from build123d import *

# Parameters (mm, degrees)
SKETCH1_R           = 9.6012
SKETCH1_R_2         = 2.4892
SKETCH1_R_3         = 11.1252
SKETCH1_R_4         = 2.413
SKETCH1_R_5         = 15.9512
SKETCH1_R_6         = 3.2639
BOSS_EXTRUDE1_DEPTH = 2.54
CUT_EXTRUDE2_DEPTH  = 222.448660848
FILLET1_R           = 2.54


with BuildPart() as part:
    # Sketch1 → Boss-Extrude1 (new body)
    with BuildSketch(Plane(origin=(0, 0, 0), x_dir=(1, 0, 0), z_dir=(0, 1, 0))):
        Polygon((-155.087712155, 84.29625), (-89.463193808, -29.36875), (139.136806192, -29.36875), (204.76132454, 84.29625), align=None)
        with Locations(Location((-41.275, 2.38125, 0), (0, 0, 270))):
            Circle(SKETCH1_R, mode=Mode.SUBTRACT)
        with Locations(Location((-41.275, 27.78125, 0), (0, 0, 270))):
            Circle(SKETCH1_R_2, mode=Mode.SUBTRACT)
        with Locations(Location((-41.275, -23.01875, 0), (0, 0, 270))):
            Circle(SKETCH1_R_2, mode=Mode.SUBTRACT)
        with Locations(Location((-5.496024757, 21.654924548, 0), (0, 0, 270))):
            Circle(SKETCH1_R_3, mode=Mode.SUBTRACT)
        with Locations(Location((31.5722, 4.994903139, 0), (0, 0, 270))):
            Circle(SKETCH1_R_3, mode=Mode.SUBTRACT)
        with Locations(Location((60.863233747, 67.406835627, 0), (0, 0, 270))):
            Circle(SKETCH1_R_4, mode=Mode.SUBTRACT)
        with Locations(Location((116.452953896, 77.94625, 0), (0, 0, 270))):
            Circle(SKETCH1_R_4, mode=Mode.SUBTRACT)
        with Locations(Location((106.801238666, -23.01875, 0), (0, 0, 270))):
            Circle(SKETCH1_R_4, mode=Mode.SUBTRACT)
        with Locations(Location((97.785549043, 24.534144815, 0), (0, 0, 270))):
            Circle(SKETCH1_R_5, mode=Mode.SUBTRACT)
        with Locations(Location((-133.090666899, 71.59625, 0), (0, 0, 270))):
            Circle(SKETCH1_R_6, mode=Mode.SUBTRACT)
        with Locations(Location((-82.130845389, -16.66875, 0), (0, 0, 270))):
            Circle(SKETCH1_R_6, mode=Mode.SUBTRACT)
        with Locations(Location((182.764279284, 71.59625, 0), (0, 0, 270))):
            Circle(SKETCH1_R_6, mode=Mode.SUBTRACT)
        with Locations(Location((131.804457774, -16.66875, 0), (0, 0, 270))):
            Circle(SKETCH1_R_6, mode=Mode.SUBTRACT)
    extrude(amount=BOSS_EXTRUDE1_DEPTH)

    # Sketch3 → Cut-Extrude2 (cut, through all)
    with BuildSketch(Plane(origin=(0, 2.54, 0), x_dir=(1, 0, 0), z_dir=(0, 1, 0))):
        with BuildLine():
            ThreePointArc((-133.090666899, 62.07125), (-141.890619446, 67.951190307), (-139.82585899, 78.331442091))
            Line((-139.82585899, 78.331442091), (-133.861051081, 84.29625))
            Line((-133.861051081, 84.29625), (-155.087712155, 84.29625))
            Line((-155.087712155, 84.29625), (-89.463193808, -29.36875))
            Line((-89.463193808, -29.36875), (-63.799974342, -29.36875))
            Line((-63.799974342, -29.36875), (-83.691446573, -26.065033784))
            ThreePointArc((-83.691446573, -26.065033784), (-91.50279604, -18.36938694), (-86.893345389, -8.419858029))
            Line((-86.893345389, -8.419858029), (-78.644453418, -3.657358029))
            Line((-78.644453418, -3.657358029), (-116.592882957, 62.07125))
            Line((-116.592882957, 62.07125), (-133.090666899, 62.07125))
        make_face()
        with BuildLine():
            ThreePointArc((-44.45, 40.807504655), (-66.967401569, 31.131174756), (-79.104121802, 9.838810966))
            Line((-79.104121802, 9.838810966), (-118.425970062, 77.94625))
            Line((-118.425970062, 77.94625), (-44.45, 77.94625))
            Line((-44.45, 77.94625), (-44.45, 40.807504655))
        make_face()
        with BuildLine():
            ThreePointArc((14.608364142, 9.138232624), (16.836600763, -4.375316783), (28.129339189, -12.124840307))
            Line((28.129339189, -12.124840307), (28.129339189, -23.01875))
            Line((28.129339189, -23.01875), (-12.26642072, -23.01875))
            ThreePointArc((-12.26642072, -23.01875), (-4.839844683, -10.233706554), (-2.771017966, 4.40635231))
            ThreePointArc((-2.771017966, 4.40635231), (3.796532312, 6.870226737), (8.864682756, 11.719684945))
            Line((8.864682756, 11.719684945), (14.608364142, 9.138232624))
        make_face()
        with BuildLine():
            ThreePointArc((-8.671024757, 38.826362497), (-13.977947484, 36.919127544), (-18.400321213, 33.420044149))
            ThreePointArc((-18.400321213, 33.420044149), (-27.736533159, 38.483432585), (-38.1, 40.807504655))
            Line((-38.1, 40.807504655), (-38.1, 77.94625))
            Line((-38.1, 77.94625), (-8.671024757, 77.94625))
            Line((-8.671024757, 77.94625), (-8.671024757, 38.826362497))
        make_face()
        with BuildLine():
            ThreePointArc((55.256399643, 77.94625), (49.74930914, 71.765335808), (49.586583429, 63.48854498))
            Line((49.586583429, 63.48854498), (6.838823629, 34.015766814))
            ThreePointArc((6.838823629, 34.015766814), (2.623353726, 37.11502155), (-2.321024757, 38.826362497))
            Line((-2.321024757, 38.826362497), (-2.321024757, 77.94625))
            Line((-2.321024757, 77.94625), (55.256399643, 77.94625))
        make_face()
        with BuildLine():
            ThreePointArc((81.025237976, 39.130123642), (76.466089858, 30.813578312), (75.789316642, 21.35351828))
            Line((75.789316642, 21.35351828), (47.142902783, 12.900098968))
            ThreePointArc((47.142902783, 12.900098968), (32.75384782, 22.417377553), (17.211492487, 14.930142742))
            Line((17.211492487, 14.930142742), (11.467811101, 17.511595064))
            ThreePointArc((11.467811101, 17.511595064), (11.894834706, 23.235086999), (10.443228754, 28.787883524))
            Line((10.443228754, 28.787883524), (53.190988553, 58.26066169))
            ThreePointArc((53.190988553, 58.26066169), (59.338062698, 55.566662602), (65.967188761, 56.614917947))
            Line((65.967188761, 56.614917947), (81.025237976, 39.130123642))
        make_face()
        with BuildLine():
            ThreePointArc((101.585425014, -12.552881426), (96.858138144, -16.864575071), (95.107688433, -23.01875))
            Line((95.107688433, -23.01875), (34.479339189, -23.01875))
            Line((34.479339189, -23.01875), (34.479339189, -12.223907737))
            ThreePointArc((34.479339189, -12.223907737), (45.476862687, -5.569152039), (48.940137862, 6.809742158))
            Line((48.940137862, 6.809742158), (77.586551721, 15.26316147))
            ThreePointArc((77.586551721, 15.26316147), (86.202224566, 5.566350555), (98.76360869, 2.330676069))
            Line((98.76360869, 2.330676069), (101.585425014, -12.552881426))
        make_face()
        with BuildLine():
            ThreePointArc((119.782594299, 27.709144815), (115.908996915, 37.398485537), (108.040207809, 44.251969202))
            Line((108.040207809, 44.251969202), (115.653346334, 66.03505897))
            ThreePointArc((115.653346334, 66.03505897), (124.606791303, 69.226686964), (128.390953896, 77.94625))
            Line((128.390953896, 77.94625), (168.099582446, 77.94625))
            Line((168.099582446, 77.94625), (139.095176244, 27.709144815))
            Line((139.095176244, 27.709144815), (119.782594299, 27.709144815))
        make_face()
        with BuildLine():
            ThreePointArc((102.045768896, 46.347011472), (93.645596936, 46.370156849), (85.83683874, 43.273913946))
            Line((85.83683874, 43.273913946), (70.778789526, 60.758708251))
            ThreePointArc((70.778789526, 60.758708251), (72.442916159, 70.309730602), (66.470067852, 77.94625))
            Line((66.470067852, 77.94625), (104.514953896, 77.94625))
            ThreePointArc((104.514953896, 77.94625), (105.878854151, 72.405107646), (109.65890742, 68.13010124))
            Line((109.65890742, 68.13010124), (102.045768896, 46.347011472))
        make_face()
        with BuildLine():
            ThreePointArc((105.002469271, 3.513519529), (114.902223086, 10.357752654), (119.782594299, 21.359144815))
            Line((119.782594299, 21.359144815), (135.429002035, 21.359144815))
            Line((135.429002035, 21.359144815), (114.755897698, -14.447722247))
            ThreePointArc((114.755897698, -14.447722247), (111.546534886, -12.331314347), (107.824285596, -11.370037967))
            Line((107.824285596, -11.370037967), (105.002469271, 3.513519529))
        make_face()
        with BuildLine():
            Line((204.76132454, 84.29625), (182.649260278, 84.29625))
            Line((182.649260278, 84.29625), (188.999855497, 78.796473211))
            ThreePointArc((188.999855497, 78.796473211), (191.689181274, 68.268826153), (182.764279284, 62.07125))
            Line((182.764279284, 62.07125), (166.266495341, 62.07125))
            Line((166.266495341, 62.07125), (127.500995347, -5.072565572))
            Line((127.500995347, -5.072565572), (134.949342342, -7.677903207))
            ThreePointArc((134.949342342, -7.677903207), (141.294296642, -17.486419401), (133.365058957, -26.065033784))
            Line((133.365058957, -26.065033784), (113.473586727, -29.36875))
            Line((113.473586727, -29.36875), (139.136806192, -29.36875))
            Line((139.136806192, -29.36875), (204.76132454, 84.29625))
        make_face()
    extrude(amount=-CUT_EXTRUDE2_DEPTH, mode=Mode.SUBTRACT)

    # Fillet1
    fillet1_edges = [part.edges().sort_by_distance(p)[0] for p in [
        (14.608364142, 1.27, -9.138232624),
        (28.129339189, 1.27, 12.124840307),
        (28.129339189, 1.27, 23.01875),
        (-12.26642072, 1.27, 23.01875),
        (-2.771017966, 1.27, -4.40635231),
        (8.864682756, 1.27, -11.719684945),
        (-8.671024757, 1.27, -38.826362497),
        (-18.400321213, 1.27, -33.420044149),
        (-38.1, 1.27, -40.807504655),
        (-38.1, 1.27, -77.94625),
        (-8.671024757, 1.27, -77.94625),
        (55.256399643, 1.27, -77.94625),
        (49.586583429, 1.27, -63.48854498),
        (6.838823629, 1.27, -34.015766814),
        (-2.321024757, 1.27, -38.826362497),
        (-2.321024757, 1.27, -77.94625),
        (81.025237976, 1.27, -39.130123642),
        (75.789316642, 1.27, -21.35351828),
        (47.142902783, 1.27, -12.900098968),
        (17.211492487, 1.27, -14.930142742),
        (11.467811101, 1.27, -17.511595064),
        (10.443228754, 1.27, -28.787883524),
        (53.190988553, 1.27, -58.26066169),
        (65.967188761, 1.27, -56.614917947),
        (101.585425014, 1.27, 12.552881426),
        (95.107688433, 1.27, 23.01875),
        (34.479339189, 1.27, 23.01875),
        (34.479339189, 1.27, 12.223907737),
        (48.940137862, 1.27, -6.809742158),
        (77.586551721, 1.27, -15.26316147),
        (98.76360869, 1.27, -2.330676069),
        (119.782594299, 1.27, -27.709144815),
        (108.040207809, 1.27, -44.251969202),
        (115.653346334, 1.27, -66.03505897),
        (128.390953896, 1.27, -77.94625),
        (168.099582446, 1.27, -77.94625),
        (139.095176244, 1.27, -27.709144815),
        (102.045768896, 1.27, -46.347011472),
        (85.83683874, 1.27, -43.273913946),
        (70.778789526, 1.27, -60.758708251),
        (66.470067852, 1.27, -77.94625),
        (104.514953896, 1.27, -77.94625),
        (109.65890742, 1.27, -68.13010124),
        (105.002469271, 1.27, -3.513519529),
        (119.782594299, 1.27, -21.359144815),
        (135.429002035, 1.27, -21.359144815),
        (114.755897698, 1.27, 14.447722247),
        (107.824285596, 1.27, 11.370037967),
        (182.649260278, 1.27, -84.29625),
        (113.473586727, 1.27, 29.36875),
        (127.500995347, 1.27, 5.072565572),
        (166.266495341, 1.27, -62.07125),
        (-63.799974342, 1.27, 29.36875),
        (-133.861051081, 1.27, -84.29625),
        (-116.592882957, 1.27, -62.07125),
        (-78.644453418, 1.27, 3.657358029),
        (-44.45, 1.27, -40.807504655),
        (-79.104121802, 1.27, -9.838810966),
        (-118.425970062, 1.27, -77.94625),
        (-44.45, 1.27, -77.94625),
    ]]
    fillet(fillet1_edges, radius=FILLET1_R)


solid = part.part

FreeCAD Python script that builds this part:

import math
import FreeCAD as App
import Part
import Sketcher
Q = App.Units.Quantity


def edges_at(feature, points):
    """Names of the edges that pass closest to the given points."""
    edges = feature.Shape.Edges
    near = lambda p: min(range(len(edges)), key=lambda i: edges[i].distToShape(Part.Vertex(*p))[0])
    return sorted({f"Edge{near(p) + 1}" for p in points})


def add_polygon(sketch, points):
    """Adds a closed chain of lines whose ends are joined by coincident constraints."""
    first, n = sketch.GeometryCount, len(points)
    for a, b in zip(points, points[1:] + points[:1]):
        sketch.addGeometry(Part.LineSegment(App.Vector(*a, 0), App.Vector(*b, 0)), False)
    for i in range(n):
        sketch.addConstraint(Sketcher.Constraint("Coincident", first + i, 2, first + (i + 1) % n, 1))

doc = App.newDocument("Part")
body = doc.addObject("PartDesign::Body", "Body")

sketch1 = body.newObject("Sketcher::SketchObject", "Sketch")
sketch1.AttachmentSupport = (doc.getObject("XZ_Plane"), [""])
sketch1.MapMode = "FlatFace"
add_polygon(sketch1, [(-155.1, -84.3), (-89.5, 29.4), (139.1, 29.4), (204.8, -84.3)])
sketch1.addGeometry(Part.Circle(App.Vector(-82.1, 16.7, 0), App.Vector(0, 0, 1), 3.3), False)
sketch1.addGeometry(Part.Circle(App.Vector(-41.3, 23, 0), App.Vector(0, 0, 1), 2.5), False)
sketch1.addGeometry(Part.Circle(App.Vector(-41.3, -2.4, 0), App.Vector(0, 0, 1), 9.6), False)
sketch1.addGeometry(Part.Circle(App.Vector(-5.5, -21.7, 0), App.Vector(0, 0, 1), 11.1), False)
sketch1.addGeometry(Part.Circle(App.Vector(106.8, 23, 0), App.Vector(0, 0, 1), 2.4), False)
sketch1.addGeometry(Part.Circle(App.Vector(131.8, 16.7, 0), App.Vector(0, 0, 1), 3.3), False)
sketch1.addGeometry(Part.Circle(App.Vector(31.6, -5, 0), App.Vector(0, 0, 1), 11.1), False)
sketch1.addGeometry(Part.Circle(App.Vector(97.8, -24.5, 0), App.Vector(0, 0, 1), 16), False)
sketch1.addGeometry(Part.Circle(App.Vector(-41.3, -27.8, 0), App.Vector(0, 0, 1), 2.5), False)
sketch1.addGeometry(Part.Circle(App.Vector(-133.1, -71.6, 0), App.Vector(0, 0, 1), 3.3), False)
sketch1.addGeometry(Part.Circle(App.Vector(60.9, -67.4, 0), App.Vector(0, 0, 1), 2.4), False)
sketch1.addGeometry(Part.Circle(App.Vector(116.5, -77.9, 0), App.Vector(0, 0, 1), 2.4), False)
sketch1.addGeometry(Part.Circle(App.Vector(182.8, -71.6, 0), App.Vector(0, 0, 1), 3.3), False)
sketch1.addConstraint([
    Sketcher.Constraint("Horizontal", 1),
    Sketcher.Constraint("Horizontal", 3),
    Sketcher.Constraint("Equal", 4, 9),
    Sketcher.Constraint("Equal", 7, 10),
    Sketcher.Constraint("Equal", 5, 12),
    Sketcher.Constraint("Equal", 9, 13),
    Sketcher.Constraint("Equal", 8, 14),
    Sketcher.Constraint("Equal", 14, 15),
    Sketcher.Constraint("Equal", 13, 16),
    Sketcher.Constraint("Horizontal", 5, 3, 8, 3),
    Sketcher.Constraint("Horizontal", 4, 3, 9, 3),
    Sketcher.Constraint("Horizontal", 13, 3, 16, 3),
    Sketcher.Constraint("Vertical", 5, 3, 6, 3),
    Sketcher.Constraint("Vertical", 6, 3, 12, 3),
    Sketcher.Constraint("Equal", 0, 2),
    Sketcher.Constraint("Diameter", 8, Q("0.19 in")),
    Sketcher.Constraint("DistanceX", 1, 1, 1, 2, Q("9 in")),
    Sketcher.Constraint("Diameter", 4, Q("0.257 in")),
    Sketcher.Constraint("Diameter", 5, Q("0.196 in")),
    Sketcher.Constraint("Diameter", 6, Q("0.756 in")),
    Sketcher.Constraint("Diameter", 7, Q("0.876 in")),
    Sketcher.Constraint("Diameter", 11, Q("1.256 in")),
    Sketcher.Constraint("Angle", 0, Q("60 deg")),
    Sketcher.Constraint("DistanceY", 6, 3, 5, 3, Q("1 in")),
    Sketcher.Constraint("DistanceY", 12, 3, 6, 3, Q("1 in")),
    Sketcher.Constraint("DistanceY", 4, 3, 0, 2, Q("0.5 in")),
    Sketcher.Constraint("DistanceY", 2, 2, 16, 3, Q("0.5 in")),
    Sketcher.Constraint("DistanceY", 4, 3, 5, 3, Q("0.25 in")),
    Sketcher.Constraint("DistanceY", 15, 3, 16, 3, Q("0.25 in")),
    Sketcher.Constraint("DistanceY", -1, 1, 4, 3, Q("0.65625 in")),
    Sketcher.Constraint("DistanceX", 5, 3, -1, 1, Q("1.625 in")),
    Sketcher.Constraint("DistanceX", -1, 1, 10, 3, Q("1.243 in")),
    Sketcher.Constraint("DistanceY", 13, 3, 12, 3, Q("1.725 in")),
    Sketcher.Constraint("DistanceX", -1, 1, 8, 3, Q("106.801239 mm")),
    Sketcher.Constraint("DistanceX", -1, 1, 11, 3, Q("97.785549 mm")),
    Sketcher.Constraint("DistanceX", -1, 1, 16, 3, Q("182.764279 mm")),
    Sketcher.Constraint("DistanceX", 4, 3, 7, 3, Q("76.634821 mm")),
    Sketcher.Constraint("DistanceX", 8, 3, 9, 3, Q("25.003219 mm")),
    Sketcher.Constraint("DistanceY", 7, 3, 10, 3, Q("16.660021 mm")),
    Sketcher.Constraint("DistanceY", 11, 3, 10, 3, Q("19.539242 mm")),
    Sketcher.Constraint("DistanceX", 13, 3, 4, 3, Q("50.959822 mm")),
    Sketcher.Constraint("DistanceY", 14, 3, 11, 3, Q("42.872691 mm")),
    Sketcher.Constraint("DistanceX", 7, 3, 14, 3, Q("66.359259 mm")),
    Sketcher.Constraint("DistanceX", 14, 3, 15, 3, Q("55.58972 mm")),
    Sketcher.Constraint("DistanceX", 0, 2, 4, 3, Q("7.332348 mm")),
    Sketcher.Constraint("DistanceX", 9, 3, 1, 2, Q("7.332348 mm")),
    Sketcher.Constraint("DistanceY", 7, 3, -1, 1, Q("21.654925 mm")),
])
pad1 = body.newObject("PartDesign::Pad", "Pad")
pad1.Profile = sketch1
pad1.Length = Q("0.1 in")
pad1.Reversed = True

sketch2 = body.newObject("Sketcher::SketchObject", "Sketch001")
sketch2.AttachmentSupport = (doc.getObject("XZ_Plane"), [""])
sketch2.MapMode = "FlatFace"
sketch2.AttachmentOffset = App.Placement(App.Vector(0, 0, -0.1 * 25.4), App.Rotation())
sketch2.addGeometry([
    Part.ArcOfCircle(Part.Circle(App.Vector(-133, -72, 0), App.Vector(0, 0, 1), 10), math.radians(90), math.radians(225)),
    Part.LineSegment(App.Vector(-140, -78, 0), App.Vector(-134, -84, 0)),
    Part.LineSegment(App.Vector(-134, -84, 0), App.Vector(-155, -84, 0)),
    Part.LineSegment(App.Vector(-155, -84, 0), App.Vector(-89, 29, 0)),
    Part.LineSegment(App.Vector(-89, 29, 0), App.Vector(-64, 29, 0)),
    Part.LineSegment(App.Vector(-64, 29, 0), App.Vector(-84, 26, 0)),
    Part.ArcOfCircle(Part.Circle(App.Vector(-82, 17, 0), App.Vector(0, 0, 1), 10), math.radians(99), math.radians(240)),
    Part.LineSegment(App.Vector(-87, 8, 0), App.Vector(-79, 4, 0)),
    Part.LineSegment(App.Vector(-79, 4, 0), App.Vector(-117, -62, 0)),
    Part.LineSegment(App.Vector(-117, -62, 0), App.Vector(-133, -62, 0)),
    Part.ArcOfCircle(Part.Circle(App.Vector(-41, -2, 0), App.Vector(0, 0, 1), 39), math.radians(-169), math.radians(-95)),
    Part.LineSegment(App.Vector(-44, -41, 0), App.Vector(-44, -78, 0)),
    Part.LineSegment(App.Vector(-44, -78, 0), App.Vector(-118, -78, 0)),
    Part.LineSegment(App.Vector(-118, -78, 0), App.Vector(-79, -10, 0)),
    Part.ArcOfCircle(Part.Circle(App.Vector(32, -5, 0), App.Vector(0, 0, 1), 17), math.radians(101), math.radians(194)),
    Part.LineSegment(App.Vector(15, -9, 0), App.Vector(9, -12, 0)),
    Part.ArcOfCircle(Part.Circle(App.Vector(-5, -22, 0), App.Vector(0, 0, 1), 17), math.radians(35), math.radians(81)),
    Part.ArcOfCircle(Part.Circle(App.Vector(-41, -2, 0), App.Vector(0, 0, 1), 39), math.radians(-3), math.radians(41)),
    Part.LineSegment(App.Vector(-12, 23, 0), App.Vector(28, 23, 0)),
    Part.LineSegment(App.Vector(28, 23, 0), App.Vector(28, 12, 0)),
    Part.ArcOfCircle(Part.Circle(App.Vector(-5, -22, 0), App.Vector(0, 0, 1), 17), math.radians(-138), math.radians(-100)),
    Part.LineSegment(App.Vector(-9, -39, 0), App.Vector(-9, -78, 0)),
    Part.LineSegment(App.Vector(-9, -78, 0), App.Vector(-38, -78, 0)),
    Part.LineSegment(App.Vector(-38, -78, 0), App.Vector(-38, -41, 0)),
    Part.ArcOfCircle(Part.Circle(App.Vector(-41, -2, 0), App.Vector(0, 0, 1), 39), math.radians(-85), math.radians(-54)),
    Part.ArcOfCircle(Part.Circle(App.Vector(61, -67, 0), App.Vector(0, 0, 1), 12), math.radians(161), math.radians(242)),
    Part.LineSegment(App.Vector(55, -78, 0), App.Vector(-2, -78, 0)),
    Part.LineSegment(App.Vector(-2, -78, 0), App.Vector(-2, -39, 0)),
    Part.ArcOfCircle(Part.Circle(App.Vector(-5, -22, 0), App.Vector(0, 0, 1), 17), math.radians(-80), math.radians(-45)),
    Part.LineSegment(App.Vector(7, -34, 0), App.Vector(50, -63, 0)),
    Part.ArcOfCircle(Part.Circle(App.Vector(98, -25, 0), App.Vector(0, 0, 1), 22), math.radians(172), math.radians(221)),
    Part.LineSegment(App.Vector(81, -39, 0), App.Vector(66, -57, 0)),
    Part.ArcOfCircle(Part.Circle(App.Vector(61, -67, 0), App.Vector(0, 0, 1), 12), math.radians(65), math.radians(130)),
    Part.LineSegment(App.Vector(53, -58, 0), App.Vector(10, -29, 0)),
    Part.ArcOfCircle(Part.Circle(App.Vector(-5, -22, 0), App.Vector(0, 0, 1), 17), math.radians(-24), math.radians(14)),
    Part.LineSegment(App.Vector(11, -18, 0), App.Vector(17, -15, 0)),
    Part.ArcOfCircle(Part.Circle(App.Vector(32, -5, 0), App.Vector(0, 0, 1), 17), math.radians(-145), math.radians(-27)),
    Part.LineSegment(App.Vector(47, -13, 0), App.Vector(76, -21, 0)),
    Part.ArcOfCircle(Part.Circle(App.Vector(107, 23, 0), App.Vector(0, 0, 1), 12), math.radians(-180), math.radians(-116)),
    Part.LineSegment(App.Vector(102, 13, 0), App.Vector(99, -2, 0)),
    Part.ArcOfCircle(Part.Circle(App.Vector(98, -25, 0), App.Vector(0, 0, 1), 22), math.radians(87), math.radians(155)),
    Part.LineSegment(App.Vector(78, -15, 0), App.Vector(49, -7, 0)),
    Part.ArcOfCircle(Part.Circle(App.Vector(32, -5, 0), App.Vector(0, 0, 1), 17), math.radians(-6), math.radians(80)),
    Part.LineSegment(App.Vector(34, 12, 0), App.Vector(34, 23, 0)),
    Part.LineSegment(App.Vector(34, 23, 0), App.Vector(95, 23, 0)),
    Part.ArcOfCircle(Part.Circle(App.Vector(98, -25, 0), App.Vector(0, 0, 1), 22), math.radians(-63), math.radians(-8)),
    Part.LineSegment(App.Vector(120, -28, 0), App.Vector(139, -28, 0)),
    Part.LineSegment(App.Vector(139, -28, 0), App.Vector(168, -78, 0)),
    Part.LineSegment(App.Vector(168, -78, 0), App.Vector(128, -78, 0)),
    Part.ArcOfCircle(Part.Circle(App.Vector(116, -78, 0), App.Vector(0, 0, 1), 12), math.radians(0), math.radians(94)),
    Part.LineSegment(App.Vector(116, -66, 0), App.Vector(108, -44, 0)),
    Part.ArcOfCircle(Part.Circle(App.Vector(98, -25, 0), App.Vector(0, 0, 1), 22), math.radians(-123), math.radians(-79)),
    Part.LineSegment(App.Vector(102, -46, 0), App.Vector(110, -68, 0)),
    Part.ArcOfCircle(Part.Circle(App.Vector(116, -78, 0), App.Vector(0, 0, 1), 12), math.radians(125), math.radians(180)),
    Part.LineSegment(App.Vector(105, -78, 0), App.Vector(66, -78, 0)),
    Part.ArcOfCircle(Part.Circle(App.Vector(61, -67, 0), App.Vector(0, 0, 1), 12), math.radians(-62), math.radians(34)),
    Part.LineSegment(App.Vector(71, -61, 0), App.Vector(86, -43, 0)),
    Part.ArcOfCircle(Part.Circle(App.Vector(98, -25, 0), App.Vector(0, 0, 1), 22), math.radians(8), math.radians(71)),
    Part.LineSegment(App.Vector(105, -4, 0), App.Vector(108, 11, 0)),
    Part.ArcOfCircle(Part.Circle(App.Vector(107, 23, 0), App.Vector(0, 0, 1), 12), math.radians(-85), math.radians(-47)),
    Part.LineSegment(App.Vector(115, 14, 0), App.Vector(135, -21, 0)),
    Part.LineSegment(App.Vector(135, -21, 0), App.Vector(120, -21, 0)),
    Part.LineSegment(App.Vector(205, -84, 0), App.Vector(183, -84, 0)),
    Part.LineSegment(App.Vector(183, -84, 0), App.Vector(189, -79, 0)),
    Part.ArcOfCircle(Part.Circle(App.Vector(183, -72, 0), App.Vector(0, 0, 1), 10), math.radians(-49), math.radians(90)),
    Part.LineSegment(App.Vector(183, -62, 0), App.Vector(166, -62, 0)),
    Part.LineSegment(App.Vector(166, -62, 0), App.Vector(128, 5, 0)),
    Part.LineSegment(App.Vector(128, 5, 0), App.Vector(135, 8, 0)),
    Part.ArcOfCircle(Part.Circle(App.Vector(132, 17, 0), App.Vector(0, 0, 1), 10), math.radians(-71), math.radians(81)),
    Part.LineSegment(App.Vector(133, 26, 0), App.Vector(113, 29, 0)),
    Part.LineSegment(App.Vector(113, 29, 0), App.Vector(139, 29, 0)),
    Part.LineSegment(App.Vector(139, 29, 0), App.Vector(205, -84, 0)),
], False)
sketch2.addConstraint([
    Sketcher.Constraint("Tangent", 0, 2, 1, 1),
    Sketcher.Constraint("Coincident", 1, 2, 2, 1),
    Sketcher.Constraint("Coincident", 2, 2, 3, 1),
    Sketcher.Constraint("Coincident", 3, 2, 4, 1),
    Sketcher.Constraint("Coincident", 4, 2, 5, 1),
    Sketcher.Constraint("Tangent", 5, 2, 6, 1),
    Sketcher.Constraint("Tangent", 6, 2, 7, 1),
    Sketcher.Constraint("Coincident", 7, 2, 8, 1),
    Sketcher.Constraint("Coincident", 8, 2, 9, 1),
    Sketcher.Constraint("Tangent", 9, 2, 0, 1),
    Sketcher.Constraint("Coincident", 10, 2, 11, 1),
    Sketcher.Constraint("Coincident", 11, 2, 12, 1),
    Sketcher.Constraint("Coincident", 12, 2, 13, 1),
    Sketcher.Constraint("Coincident", 13, 2, 10, 1),
    Sketcher.Constraint("Coincident", 14, 2, 15, 1),
    Sketcher.Constraint("Coincident", 15, 2, 16, 1),
    Sketcher.Constraint("Coincident", 16, 2, 17, 1),
    Sketcher.Constraint("Coincident", 17, 2, 18, 1),
    Sketcher.Constraint("Coincident", 18, 2, 19, 1),
    Sketcher.Constraint("Coincident", 19, 2, 14, 1),
    Sketcher.Constraint("Coincident", 20, 2, 21, 1),
    Sketcher.Constraint("Coincident", 21, 2, 22, 1),
    Sketcher.Constraint("Coincident", 22, 2, 23, 1),
    Sketcher.Constraint("Coincident", 23, 2, 24, 1),
    Sketcher.Constraint("Coincident", 24, 2, 20, 1),
    Sketcher.Constraint("Coincident", 25, 2, 26, 1),
    Sketcher.Constraint("Coincident", 26, 2, 27, 1),
    Sketcher.Constraint("Coincident", 27, 2, 28, 1),
    Sketcher.Constraint("Coincident", 28, 2, 29, 1),
    Sketcher.Constraint("Coincident", 29, 2, 25, 1),
    Sketcher.Constraint("Coincident", 30, 2, 31, 1),
    Sketcher.Constraint("Coincident", 31, 2, 32, 1),
    Sketcher.Constraint("Coincident", 32, 2, 33, 1),
    Sketcher.Constraint("Coincident", 33, 2, 34, 1),
    Sketcher.Constraint("Coincident", 34, 2, 35, 1),
    Sketcher.Constraint("Coincident", 35, 2, 36, 1),
    Sketcher.Constraint("Coincident", 36, 2, 37, 1),
    Sketcher.Constraint("Coincident", 37, 2, 30, 1),
    Sketcher.Constraint("Coincident", 38, 2, 39, 1),
    Sketcher.Constraint("Coincident", 39, 2, 40, 1),
    Sketcher.Constraint("Coincident", 40, 2, 41, 1),
    Sketcher.Constraint("Coincident", 41, 2, 42, 1),
    Sketcher.Constraint("Coincident", 42, 2, 43, 1),
    Sketcher.Constraint("Coincident", 43, 2, 44, 1),
    Sketcher.Constraint("Coincident", 44, 2, 38, 1),
    Sketcher.Constraint("Coincident", 45, 2, 46, 1),
    Sketcher.Constraint("Coincident", 46, 2, 47, 1),
    Sketcher.Constraint("Coincident", 47, 2, 48, 1),
    Sketcher.Constraint("Coincident", 48, 2, 49, 1),
    Sketcher.Constraint("Coincident", 49, 2, 50, 1),
    Sketcher.Constraint("Coincident", 50, 2, 45, 1),
    Sketcher.Constraint("Coincident", 51, 2, 52, 1),
    Sketcher.Constraint("Coincident", 52, 2, 53, 1),
    Sketcher.Constraint("Coincident", 53, 2, 54, 1),
    Sketcher.Constraint("Coincident", 54, 2, 55, 1),
    Sketcher.Constraint("Coincident", 55, 2, 56, 1),
    Sketcher.Constraint("Coincident", 56, 2, 51, 1),
    Sketcher.Constraint("Coincident", 57, 2, 58, 1),
    Sketcher.Constraint("Coincident", 58, 2, 59, 1),
    Sketcher.Constraint("Coincident", 59, 2, 60, 1),
    Sketcher.Constraint("Coincident", 60, 2, 61, 1),
    Sketcher.Constraint("Coincident", 61, 2, 57, 1),
    Sketcher.Constraint("Coincident", 62, 2, 63, 1),
    Sketcher.Constraint("Tangent", 63, 2, 64, 1),
    Sketcher.Constraint("Tangent", 64, 2, 65, 1),
    Sketcher.Constraint("Coincident", 65, 2, 66, 1),
    Sketcher.Constraint("Coincident", 66, 2, 67, 1),
    Sketcher.Constraint("Tangent", 67, 2, 68, 1),
    Sketcher.Constraint("Tangent", 68, 2, 69, 1),
    Sketcher.Constraint("Coincident", 69, 2, 70, 1),
    Sketcher.Constraint("Coincident", 70, 2, 71, 1),
    Sketcher.Constraint("Coincident", 71, 2, 62, 1),
    Sketcher.Constraint("Horizontal", 2),
    Sketcher.Constraint("Horizontal", 4),
    Sketcher.Constraint("Horizontal", 9),
    Sketcher.Constraint("Vertical", 11),
    Sketcher.Constraint("Horizontal", 12),
    Sketcher.Constraint("Horizontal", 18),
    Sketcher.Constraint("Vertical", 19),
    Sketcher.Constraint("Vertical", 21),
    Sketcher.Constraint("Horizontal", 22),
    Sketcher.Constraint("Vertical", 23),
    Sketcher.Constraint("Horizontal", 26),
    Sketcher.Constraint("Vertical", 27),
    Sketcher.Constraint("Vertical", 43),
    Sketcher.Constraint("Horizontal", 44),
    Sketcher.Constraint("Horizontal", 46),
    Sketcher.Constraint("Horizontal", 48),
    Sketcher.Constraint("Horizontal", 54),
    Sketcher.Constraint("Horizontal", 61),
    Sketcher.Constraint("Horizontal", 62),
    Sketcher.Constraint("Horizontal", 65),
    Sketcher.Constraint("Horizontal", 70),
    Sketcher.Constraint("Coincident", 17, 3, 10, 3),
    Sketcher.Constraint("Coincident", 20, 3, 16, 3),
    Sketcher.Constraint("Coincident", 24, 3, 10, 3),
    Sketcher.Constraint("Coincident", 28, 3, 16, 3),
    Sketcher.Constraint("Coincident", 32, 3, 25, 3),
    Sketcher.Constraint("Coincident", 34, 3, 16, 3),
    Sketcher.Constraint("Coincident", 36, 3, 14, 3),
    Sketcher.Constraint("Coincident", 40, 3, 30, 3),
    Sketcher.Constraint("Coincident", 42, 3, 14, 3),
    Sketcher.Constraint("Coincident", 45, 3, 30, 3),
    Sketcher.Constraint("Coincident", 51, 3, 30, 3),
    Sketcher.Constraint("Coincident", 53, 3, 49, 3),
    Sketcher.Constraint("Coincident", 55, 3, 25, 3),
    Sketcher.Constraint("Coincident", 57, 3, 30, 3),
    Sketcher.Constraint("Coincident", 59, 3, 38, 3),
    Sketcher.Constraint("Equal", 0, 6),
    Sketcher.Constraint("Equal", 14, 16),
    Sketcher.Constraint("Equal", 10, 17),
    Sketcher.Constraint("Equal", 16, 20),
    Sketcher.Constraint("Equal", 17, 24),
    Sketcher.Constraint("Equal", 20, 28),
    Sketcher.Constraint("Equal", 25, 32),
    Sketcher.Constraint("Equal", 28, 34),
    Sketcher.Constraint("Equal", 34, 36),
    Sketcher.Constraint("Equal", 30, 40),
    Sketcher.Constraint("Equal", 36, 42),
    Sketcher.Constraint("Equal", 40, 45),
    Sketcher.Constraint("Equal", 32, 49),
    Sketcher.Constraint("Equal", 45, 51),
    Sketcher.Constraint("Equal", 49, 53),
    Sketcher.Constraint("Equal", 53, 55),
    Sketcher.Constraint("Equal", 51, 57),
    Sketcher.Constraint("Equal", 38, 59),
    Sketcher.Constraint("Equal", 6, 64),
    Sketcher.Constraint("Equal", 64, 68),
    Sketcher.Constraint("Perpendicular", 3, 7),
    Sketcher.Constraint("Perpendicular", 7, 8),
    Sketcher.Constraint("Parallel", 8, 13),
    Sketcher.Constraint("Parallel", 29, 33),
    Sketcher.Constraint("Parallel", 15, 35),
    Sketcher.Constraint("Parallel", 37, 41),
    Sketcher.Constraint("Parallel", 50, 52),
    Sketcher.Constraint("Parallel", 31, 56),
    Sketcher.Constraint("Parallel", 39, 58),
    Sketcher.Constraint("Parallel", 47, 60),
    Sketcher.Constraint("Parallel", 60, 66),
    Sketcher.Constraint("Parallel", 66, 71),
    Sketcher.Constraint("Horizontal", 0, 3, 64, 3),
    Sketcher.Constraint("Horizontal", 6, 3, 68, 3),
    Sketcher.Constraint("Horizontal", 53, 3, 11, 2),
    Sketcher.Constraint("Horizontal", 59, 3, 17, 2),
    Sketcher.Constraint("Horizontal", 12, 2, 21, 2),
    Sketcher.Constraint("Horizontal", 10, 2, 23, 2),
    Sketcher.Constraint("Horizontal", 22, 2, 25, 2),
    Sketcher.Constraint("Horizontal", 20, 2, 27, 2),
    Sketcher.Constraint("Horizontal", 18, 2, 43, 2),
    Sketcher.Constraint("Horizontal", 26, 2, 47, 2),
    Sketcher.Constraint("Horizontal", 48, 2, 53, 2),
    Sketcher.Constraint("Horizontal", 2, 2, 62, 2),
    Sketcher.Constraint("Horizontal", 5, 2, 68, 2),
    Sketcher.Constraint("Horizontal", 4, 2, 69, 2),
    Sketcher.Constraint("Vertical", 45, 2, 61, 2),
    Sketcher.Constraint("Equal", 9, 65),
    Sketcher.Constraint("Equal", 4, 70),
    Sketcher.Constraint("Equal", 29, 33),
    Sketcher.Constraint("Equal", 15, 35),
    Sketcher.Constraint("Equal", 37, 41),
    Sketcher.Constraint("Equal", 31, 50),
    Sketcher.Constraint("Equal", 50, 52),
    Sketcher.Constraint("Equal", 52, 56),
    Sketcher.Constraint("Equal", 39, 58),
    Sketcher.Constraint("Equal", 3, 71),
    Sketcher.Constraint("Radius", 25, Q("0.47 in")),
    Sketcher.Constraint("Angle", 1, Q("-45 deg")),
    Sketcher.Constraint("Angle", 3, Q("60 deg")),
    Sketcher.Constraint("Radius", 0, Q("0.375 in")),
    Sketcher.Constraint("Radius", 10, Q("1.518 in")),
    Sketcher.Constraint("Radius", 14, Q("0.6875 in")),
    Sketcher.Constraint("Radius", 30, Q("0.875 in")),
    Sketcher.Constraint("DistanceX", 22, 2, -1, 1, Q("1.5 in")),
    Sketcher.Constraint("DistanceX", 10, 2, -1, 1, Q("1.75 in")),
    Sketcher.Constraint("Angle", 5, Q("-170.569992 deg")),
    Sketcher.Constraint("Distance", 7, Q("0.375 in")),
    Sketcher.Constraint("DistanceY", -1, 1, 6, 3, Q("0.65625 in")),
    Sketcher.Constraint("DistanceY", 10, 3, -1, 1, Q("0.09375 in")),
    Sketcher.Constraint("DistanceX", -1, 1, 14, 3, Q("1.243 in")),
    Sketcher.Constraint("DistanceY", -1, 1, 38, 3, Q("0.90625 in")),
    Sketcher.Constraint("DistanceY", -1, 1, 3, 2, Q("1.15625 in")),
    Sketcher.Constraint("Radius", 38, Q("11.69355 mm")),
    Sketcher.Constraint("DistanceY", 41, 2, -1, 1, Q("0.2681001 in")),
    Sketcher.Constraint("Distance", 66, Q("77.531 mm")),
    Sketcher.Constraint("DistanceX", 2, 2, 2, 1, Q("21.226661 mm")),
    Sketcher.Constraint("DistanceX", 4, 1, 4, 2, Q("25.663219 mm")),
    Sketcher.Constraint("DistanceX", 12, 2, 12, 1, Q("73.97597 mm")),
    Sketcher.Constraint("DistanceX", 18, 1, 18, 2, Q("40.39576 mm")),
    Sketcher.Constraint("DistanceX", 44, 1, 44, 2, Q("60.628349 mm")),
    Sketcher.Constraint("DistanceX", 46, 1, 46, 2, Q("19.312582 mm")),
    Sketcher.Constraint("DistanceX", 48, 2, 48, 1, Q("39.708629 mm")),
    Sketcher.Constraint("DistanceY", 19, 2, 19, 1, Q("10.89391 mm")),
    Sketcher.Constraint("DistanceX", -1, 1, 25, 2, Q("55.2564 mm")),
    Sketcher.Constraint("DistanceY", 36, 2, -1, 1, Q("12.900099 mm")),
    Sketcher.Constraint("DistanceY", 52, 2, -1, 1, Q("68.130101 mm")),
    Sketcher.Constraint("Distance", 8, Q("75.896859 mm")),
    Sketcher.Constraint("Distance", 29, Q("51.92317 mm")),
    Sketcher.Constraint("Distance", 60, Q("41.346209 mm")),
    Sketcher.Constraint("Distance", 67, Q("7.890859 mm")),
    Sketcher.Constraint("DistanceX", 9, 2, 9, 1, Q("16.497784 mm")),
    Sketcher.Constraint("DistanceX", 22, 2, 22, 1, Q("29.428975 mm")),
    Sketcher.Constraint("DistanceX", 26, 2, 26, 1, Q("57.577424 mm")),
    Sketcher.Constraint("DistanceX", 54, 2, 54, 1, Q("38.044886 mm")),
    Sketcher.Constraint("DistanceX", 61, 2, 61, 1, Q("15.646408 mm")),
    Sketcher.Constraint("DistanceX", 62, 2, 62, 1, Q("22.112064 mm")),
    Sketcher.Constraint("DistanceY", 11, 2, 11, 1, Q("37.138745 mm")),
    Sketcher.Constraint("DistanceY", 21, 2, 21, 1, Q("39.119888 mm")),
    Sketcher.Constraint("DistanceY", 43, 1, 43, 2, Q("10.794842 mm")),
    Sketcher.Constraint("DistanceX", -1, 1, 30, 3, Q("97.785549 mm")),
    Sketcher.Constraint("DistanceX", -1, 1, 64, 3, Q("182.764279 mm")),
    Sketcher.Constraint("DistanceX", 0, 2, -1, 1, Q("139.825859 mm")),
    Sketcher.Constraint("DistanceX", -1, 1, 31, 2, Q("65.967189 mm")),
    Sketcher.Constraint("DistanceX", -1, 1, 32, 2, Q("53.190989 mm")),
    Sketcher.Constraint("DistanceY", 32, 2, -1, 1, Q("58.260662 mm")),
    Sketcher.Constraint("DistanceX", -1, 1, 34, 2, Q("11.467811 mm")),
    Sketcher.Constraint("DistanceY", -1, 1, 38, 2, Q("12.552881 mm")),
    Sketcher.Constraint("DistanceX", -1, 1, 39, 2, Q("98.763609 mm")),
    Sketcher.Constraint("DistanceY", 49, 2, -1, 1, Q("66.035059 mm")),
    Sketcher.Constraint("Distance", 15, Q("6.297124 mm")),
])
pocket1 = body.newObject("PartDesign::Pocket", "Pocket")
pocket1.Profile = sketch2
pocket1.Type = "ThroughAll"
pocket1.Reversed = True
doc.recompute()

fillet = body.newObject("PartDesign::Fillet", "Fillet")
fillet.Base = (pocket1, edges_at(pocket1, [
    (14.608, 1.27, -9.138),
    (28.129, 1.27, 12.125),
    (28.129, 1.27, 23.019),
    (-12.266, 1.27, 23.019),
    (-2.771, 1.27, -4.406),
    (8.865, 1.27, -11.72),
    (-8.671, 1.27, -38.826),
    (-18.4, 1.27, -33.42),
    (-38.1, 1.27, -40.808),
    (-38.1, 1.27, -77.946),
    (-8.671, 1.27, -77.946),
    (55.256, 1.27, -77.946),
    (49.587, 1.27, -63.489),
    (6.839, 1.27, -34.016),
    (-2.321, 1.27, -38.826),
    (-2.321, 1.27, -77.946),
    (81.025, 1.27, -39.13),
    (75.789, 1.27, -21.354),
    (47.143, 1.27, -12.9),
    (17.211, 1.27, -14.93),
    (11.468, 1.27, -17.512),
    (10.443, 1.27, -28.788),
    (53.191, 1.27, -58.261),
    (65.967, 1.27, -56.615),
    (101.585, 1.27, 12.553),
    (95.108, 1.27, 23.019),
    (34.479, 1.27, 23.019),
    (34.479, 1.27, 12.224),
    (48.94, 1.27, -6.81),
    (77.587, 1.27, -15.263),
    (98.764, 1.27, -2.331),
    (119.783, 1.27, -27.709),
    (108.04, 1.27, -44.252),
    (115.653, 1.27, -66.035),
    (128.391, 1.27, -77.946),
    (168.1, 1.27, -77.946),
    (139.095, 1.27, -27.709),
    (102.046, 1.27, -46.347),
    (85.837, 1.27, -43.274),
    (70.779, 1.27, -60.759),
    (66.47, 1.27, -77.946),
    (104.515, 1.27, -77.946),
    (109.659, 1.27, -68.13),
    (105.002, 1.27, -3.514),
    (119.783, 1.27, -21.359),
    (135.429, 1.27, -21.359),
    (114.756, 1.27, 14.448),
    (107.824, 1.27, 11.37),
    (182.649, 1.27, -84.296),
    (113.474, 1.27, 29.369),
    (127.501, 1.27, 5.073),
    (166.266, 1.27, -62.071),
    (-63.8, 1.27, 29.369),
    (-133.861, 1.27, -84.296),
    (-116.593, 1.27, -62.071),
    (-78.644, 1.27, 3.657),
    (-44.45, 1.27, -40.808),
    (-79.104, 1.27, -9.839),
    (-118.426, 1.27, -77.946),
    (-44.45, 1.27, -77.946),
]))
fillet.Radius = Q("0.1 in")

doc.recompute()
